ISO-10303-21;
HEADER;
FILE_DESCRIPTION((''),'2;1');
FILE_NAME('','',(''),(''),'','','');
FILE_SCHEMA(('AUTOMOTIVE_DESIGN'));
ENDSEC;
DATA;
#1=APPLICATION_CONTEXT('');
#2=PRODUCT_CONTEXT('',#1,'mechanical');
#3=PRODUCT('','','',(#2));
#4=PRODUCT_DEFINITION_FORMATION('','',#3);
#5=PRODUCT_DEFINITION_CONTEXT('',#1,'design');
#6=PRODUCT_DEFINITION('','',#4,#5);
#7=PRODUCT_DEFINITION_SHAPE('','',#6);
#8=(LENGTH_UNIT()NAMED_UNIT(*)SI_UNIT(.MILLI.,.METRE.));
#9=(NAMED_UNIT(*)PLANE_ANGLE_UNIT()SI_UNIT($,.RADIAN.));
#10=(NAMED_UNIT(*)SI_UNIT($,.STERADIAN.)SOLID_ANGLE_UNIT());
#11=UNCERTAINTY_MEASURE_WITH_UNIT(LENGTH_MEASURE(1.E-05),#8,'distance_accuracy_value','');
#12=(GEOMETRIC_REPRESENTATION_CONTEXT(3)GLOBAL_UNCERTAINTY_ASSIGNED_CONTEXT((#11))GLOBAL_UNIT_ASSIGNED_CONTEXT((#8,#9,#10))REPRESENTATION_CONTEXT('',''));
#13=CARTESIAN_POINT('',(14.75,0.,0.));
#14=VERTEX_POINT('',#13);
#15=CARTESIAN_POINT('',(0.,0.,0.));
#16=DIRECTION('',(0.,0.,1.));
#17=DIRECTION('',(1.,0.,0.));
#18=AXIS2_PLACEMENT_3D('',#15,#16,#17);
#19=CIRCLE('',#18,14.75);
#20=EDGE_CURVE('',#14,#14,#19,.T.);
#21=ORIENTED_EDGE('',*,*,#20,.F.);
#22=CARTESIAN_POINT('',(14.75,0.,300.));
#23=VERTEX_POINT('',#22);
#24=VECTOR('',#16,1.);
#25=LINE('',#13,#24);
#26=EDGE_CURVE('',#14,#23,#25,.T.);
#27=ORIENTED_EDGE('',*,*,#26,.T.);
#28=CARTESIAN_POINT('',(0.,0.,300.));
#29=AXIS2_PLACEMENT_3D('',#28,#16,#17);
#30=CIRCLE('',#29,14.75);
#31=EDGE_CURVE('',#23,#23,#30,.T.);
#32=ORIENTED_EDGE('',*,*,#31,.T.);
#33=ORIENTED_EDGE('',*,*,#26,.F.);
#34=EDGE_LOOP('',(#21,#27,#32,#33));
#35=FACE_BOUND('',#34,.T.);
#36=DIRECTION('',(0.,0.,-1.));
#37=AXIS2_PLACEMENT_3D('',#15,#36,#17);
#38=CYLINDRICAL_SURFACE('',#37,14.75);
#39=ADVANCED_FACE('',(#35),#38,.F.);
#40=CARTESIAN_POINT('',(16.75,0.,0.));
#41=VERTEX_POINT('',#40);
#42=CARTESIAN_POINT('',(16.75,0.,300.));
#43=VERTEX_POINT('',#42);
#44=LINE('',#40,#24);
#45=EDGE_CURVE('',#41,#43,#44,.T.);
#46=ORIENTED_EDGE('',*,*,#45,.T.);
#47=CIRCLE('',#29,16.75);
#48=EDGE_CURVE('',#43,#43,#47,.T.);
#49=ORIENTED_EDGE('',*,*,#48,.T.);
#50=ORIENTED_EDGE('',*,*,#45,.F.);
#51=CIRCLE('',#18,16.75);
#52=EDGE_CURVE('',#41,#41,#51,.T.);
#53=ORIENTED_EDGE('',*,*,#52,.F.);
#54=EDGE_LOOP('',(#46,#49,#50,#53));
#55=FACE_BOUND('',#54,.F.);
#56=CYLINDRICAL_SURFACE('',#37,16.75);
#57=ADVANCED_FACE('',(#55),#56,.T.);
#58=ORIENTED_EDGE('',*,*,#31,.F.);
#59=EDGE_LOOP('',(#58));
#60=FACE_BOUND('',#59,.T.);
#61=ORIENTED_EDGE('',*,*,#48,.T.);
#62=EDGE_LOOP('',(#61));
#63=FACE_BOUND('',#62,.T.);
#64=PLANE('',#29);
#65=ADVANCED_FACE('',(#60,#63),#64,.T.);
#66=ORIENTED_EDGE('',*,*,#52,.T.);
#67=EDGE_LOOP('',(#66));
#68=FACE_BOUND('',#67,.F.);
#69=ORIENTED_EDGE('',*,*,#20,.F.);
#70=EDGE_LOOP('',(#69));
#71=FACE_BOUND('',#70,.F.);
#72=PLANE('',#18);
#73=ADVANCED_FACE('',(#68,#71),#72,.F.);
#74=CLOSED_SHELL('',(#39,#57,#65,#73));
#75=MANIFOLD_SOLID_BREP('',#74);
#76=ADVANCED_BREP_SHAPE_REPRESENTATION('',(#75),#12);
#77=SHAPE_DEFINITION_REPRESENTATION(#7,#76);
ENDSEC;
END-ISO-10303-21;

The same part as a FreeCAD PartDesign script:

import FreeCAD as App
import Part
import Sketcher

V = App.Vector
Q = App.Units.Quantity

doc = App.newDocument("Part")
params = doc.addObject("Spreadsheet::Sheet", "Params")
for row, (alias, value) in enumerate([
    ("sketch1_diameter", "33.5 mm"),
    ("sketch1_diameter2", "29.5 mm"),
    ("pad1_length", "300 mm"),
], start=1):
    params.set(f"A{row}", alias)
    params.set(f"B{row}", "=" + value)
    params.setAlias(f"B{row}", alias)

body = doc.addObject("PartDesign::Body", "Body")

# Sketch on XY plane
sketch1 = body.newObject("Sketcher::SketchObject", "Sketch")
sketch1.AttachmentSupport = (doc.getObject("XY_Plane"), [""])
sketch1.MapMode = "FlatFace"
sketch1.addGeometry(Part.Circle(V(0, 0, 0), V(0, 0, 1), 16.75), False)
sketch1.addGeometry(Part.Circle(V(0, 0, 0), V(0, 0, 1), 14.75), False)
sketch1.addConstraint(Sketcher.Constraint("Coincident", 0, 3, -1, 1))
sketch1.addConstraint(Sketcher.Constraint("Coincident", 1, 3, -1, 1))
sketch1.addConstraint(Sketcher.Constraint("Diameter", 0, Q("33.5 mm")))
sketch1.addConstraint(Sketcher.Constraint("Diameter", 1, Q("29.5 mm")))
sketch1.setExpression("Constraints[2]", "Params.sketch1_diameter")
sketch1.setExpression("Constraints[3]", "Params.sketch1_diameter2")
pad1 = body.newObject("PartDesign::Pad", "Pad")
pad1.Profile = sketch1
pad1.setExpression("Length", "Params.pad1_length")

doc.recompute()
